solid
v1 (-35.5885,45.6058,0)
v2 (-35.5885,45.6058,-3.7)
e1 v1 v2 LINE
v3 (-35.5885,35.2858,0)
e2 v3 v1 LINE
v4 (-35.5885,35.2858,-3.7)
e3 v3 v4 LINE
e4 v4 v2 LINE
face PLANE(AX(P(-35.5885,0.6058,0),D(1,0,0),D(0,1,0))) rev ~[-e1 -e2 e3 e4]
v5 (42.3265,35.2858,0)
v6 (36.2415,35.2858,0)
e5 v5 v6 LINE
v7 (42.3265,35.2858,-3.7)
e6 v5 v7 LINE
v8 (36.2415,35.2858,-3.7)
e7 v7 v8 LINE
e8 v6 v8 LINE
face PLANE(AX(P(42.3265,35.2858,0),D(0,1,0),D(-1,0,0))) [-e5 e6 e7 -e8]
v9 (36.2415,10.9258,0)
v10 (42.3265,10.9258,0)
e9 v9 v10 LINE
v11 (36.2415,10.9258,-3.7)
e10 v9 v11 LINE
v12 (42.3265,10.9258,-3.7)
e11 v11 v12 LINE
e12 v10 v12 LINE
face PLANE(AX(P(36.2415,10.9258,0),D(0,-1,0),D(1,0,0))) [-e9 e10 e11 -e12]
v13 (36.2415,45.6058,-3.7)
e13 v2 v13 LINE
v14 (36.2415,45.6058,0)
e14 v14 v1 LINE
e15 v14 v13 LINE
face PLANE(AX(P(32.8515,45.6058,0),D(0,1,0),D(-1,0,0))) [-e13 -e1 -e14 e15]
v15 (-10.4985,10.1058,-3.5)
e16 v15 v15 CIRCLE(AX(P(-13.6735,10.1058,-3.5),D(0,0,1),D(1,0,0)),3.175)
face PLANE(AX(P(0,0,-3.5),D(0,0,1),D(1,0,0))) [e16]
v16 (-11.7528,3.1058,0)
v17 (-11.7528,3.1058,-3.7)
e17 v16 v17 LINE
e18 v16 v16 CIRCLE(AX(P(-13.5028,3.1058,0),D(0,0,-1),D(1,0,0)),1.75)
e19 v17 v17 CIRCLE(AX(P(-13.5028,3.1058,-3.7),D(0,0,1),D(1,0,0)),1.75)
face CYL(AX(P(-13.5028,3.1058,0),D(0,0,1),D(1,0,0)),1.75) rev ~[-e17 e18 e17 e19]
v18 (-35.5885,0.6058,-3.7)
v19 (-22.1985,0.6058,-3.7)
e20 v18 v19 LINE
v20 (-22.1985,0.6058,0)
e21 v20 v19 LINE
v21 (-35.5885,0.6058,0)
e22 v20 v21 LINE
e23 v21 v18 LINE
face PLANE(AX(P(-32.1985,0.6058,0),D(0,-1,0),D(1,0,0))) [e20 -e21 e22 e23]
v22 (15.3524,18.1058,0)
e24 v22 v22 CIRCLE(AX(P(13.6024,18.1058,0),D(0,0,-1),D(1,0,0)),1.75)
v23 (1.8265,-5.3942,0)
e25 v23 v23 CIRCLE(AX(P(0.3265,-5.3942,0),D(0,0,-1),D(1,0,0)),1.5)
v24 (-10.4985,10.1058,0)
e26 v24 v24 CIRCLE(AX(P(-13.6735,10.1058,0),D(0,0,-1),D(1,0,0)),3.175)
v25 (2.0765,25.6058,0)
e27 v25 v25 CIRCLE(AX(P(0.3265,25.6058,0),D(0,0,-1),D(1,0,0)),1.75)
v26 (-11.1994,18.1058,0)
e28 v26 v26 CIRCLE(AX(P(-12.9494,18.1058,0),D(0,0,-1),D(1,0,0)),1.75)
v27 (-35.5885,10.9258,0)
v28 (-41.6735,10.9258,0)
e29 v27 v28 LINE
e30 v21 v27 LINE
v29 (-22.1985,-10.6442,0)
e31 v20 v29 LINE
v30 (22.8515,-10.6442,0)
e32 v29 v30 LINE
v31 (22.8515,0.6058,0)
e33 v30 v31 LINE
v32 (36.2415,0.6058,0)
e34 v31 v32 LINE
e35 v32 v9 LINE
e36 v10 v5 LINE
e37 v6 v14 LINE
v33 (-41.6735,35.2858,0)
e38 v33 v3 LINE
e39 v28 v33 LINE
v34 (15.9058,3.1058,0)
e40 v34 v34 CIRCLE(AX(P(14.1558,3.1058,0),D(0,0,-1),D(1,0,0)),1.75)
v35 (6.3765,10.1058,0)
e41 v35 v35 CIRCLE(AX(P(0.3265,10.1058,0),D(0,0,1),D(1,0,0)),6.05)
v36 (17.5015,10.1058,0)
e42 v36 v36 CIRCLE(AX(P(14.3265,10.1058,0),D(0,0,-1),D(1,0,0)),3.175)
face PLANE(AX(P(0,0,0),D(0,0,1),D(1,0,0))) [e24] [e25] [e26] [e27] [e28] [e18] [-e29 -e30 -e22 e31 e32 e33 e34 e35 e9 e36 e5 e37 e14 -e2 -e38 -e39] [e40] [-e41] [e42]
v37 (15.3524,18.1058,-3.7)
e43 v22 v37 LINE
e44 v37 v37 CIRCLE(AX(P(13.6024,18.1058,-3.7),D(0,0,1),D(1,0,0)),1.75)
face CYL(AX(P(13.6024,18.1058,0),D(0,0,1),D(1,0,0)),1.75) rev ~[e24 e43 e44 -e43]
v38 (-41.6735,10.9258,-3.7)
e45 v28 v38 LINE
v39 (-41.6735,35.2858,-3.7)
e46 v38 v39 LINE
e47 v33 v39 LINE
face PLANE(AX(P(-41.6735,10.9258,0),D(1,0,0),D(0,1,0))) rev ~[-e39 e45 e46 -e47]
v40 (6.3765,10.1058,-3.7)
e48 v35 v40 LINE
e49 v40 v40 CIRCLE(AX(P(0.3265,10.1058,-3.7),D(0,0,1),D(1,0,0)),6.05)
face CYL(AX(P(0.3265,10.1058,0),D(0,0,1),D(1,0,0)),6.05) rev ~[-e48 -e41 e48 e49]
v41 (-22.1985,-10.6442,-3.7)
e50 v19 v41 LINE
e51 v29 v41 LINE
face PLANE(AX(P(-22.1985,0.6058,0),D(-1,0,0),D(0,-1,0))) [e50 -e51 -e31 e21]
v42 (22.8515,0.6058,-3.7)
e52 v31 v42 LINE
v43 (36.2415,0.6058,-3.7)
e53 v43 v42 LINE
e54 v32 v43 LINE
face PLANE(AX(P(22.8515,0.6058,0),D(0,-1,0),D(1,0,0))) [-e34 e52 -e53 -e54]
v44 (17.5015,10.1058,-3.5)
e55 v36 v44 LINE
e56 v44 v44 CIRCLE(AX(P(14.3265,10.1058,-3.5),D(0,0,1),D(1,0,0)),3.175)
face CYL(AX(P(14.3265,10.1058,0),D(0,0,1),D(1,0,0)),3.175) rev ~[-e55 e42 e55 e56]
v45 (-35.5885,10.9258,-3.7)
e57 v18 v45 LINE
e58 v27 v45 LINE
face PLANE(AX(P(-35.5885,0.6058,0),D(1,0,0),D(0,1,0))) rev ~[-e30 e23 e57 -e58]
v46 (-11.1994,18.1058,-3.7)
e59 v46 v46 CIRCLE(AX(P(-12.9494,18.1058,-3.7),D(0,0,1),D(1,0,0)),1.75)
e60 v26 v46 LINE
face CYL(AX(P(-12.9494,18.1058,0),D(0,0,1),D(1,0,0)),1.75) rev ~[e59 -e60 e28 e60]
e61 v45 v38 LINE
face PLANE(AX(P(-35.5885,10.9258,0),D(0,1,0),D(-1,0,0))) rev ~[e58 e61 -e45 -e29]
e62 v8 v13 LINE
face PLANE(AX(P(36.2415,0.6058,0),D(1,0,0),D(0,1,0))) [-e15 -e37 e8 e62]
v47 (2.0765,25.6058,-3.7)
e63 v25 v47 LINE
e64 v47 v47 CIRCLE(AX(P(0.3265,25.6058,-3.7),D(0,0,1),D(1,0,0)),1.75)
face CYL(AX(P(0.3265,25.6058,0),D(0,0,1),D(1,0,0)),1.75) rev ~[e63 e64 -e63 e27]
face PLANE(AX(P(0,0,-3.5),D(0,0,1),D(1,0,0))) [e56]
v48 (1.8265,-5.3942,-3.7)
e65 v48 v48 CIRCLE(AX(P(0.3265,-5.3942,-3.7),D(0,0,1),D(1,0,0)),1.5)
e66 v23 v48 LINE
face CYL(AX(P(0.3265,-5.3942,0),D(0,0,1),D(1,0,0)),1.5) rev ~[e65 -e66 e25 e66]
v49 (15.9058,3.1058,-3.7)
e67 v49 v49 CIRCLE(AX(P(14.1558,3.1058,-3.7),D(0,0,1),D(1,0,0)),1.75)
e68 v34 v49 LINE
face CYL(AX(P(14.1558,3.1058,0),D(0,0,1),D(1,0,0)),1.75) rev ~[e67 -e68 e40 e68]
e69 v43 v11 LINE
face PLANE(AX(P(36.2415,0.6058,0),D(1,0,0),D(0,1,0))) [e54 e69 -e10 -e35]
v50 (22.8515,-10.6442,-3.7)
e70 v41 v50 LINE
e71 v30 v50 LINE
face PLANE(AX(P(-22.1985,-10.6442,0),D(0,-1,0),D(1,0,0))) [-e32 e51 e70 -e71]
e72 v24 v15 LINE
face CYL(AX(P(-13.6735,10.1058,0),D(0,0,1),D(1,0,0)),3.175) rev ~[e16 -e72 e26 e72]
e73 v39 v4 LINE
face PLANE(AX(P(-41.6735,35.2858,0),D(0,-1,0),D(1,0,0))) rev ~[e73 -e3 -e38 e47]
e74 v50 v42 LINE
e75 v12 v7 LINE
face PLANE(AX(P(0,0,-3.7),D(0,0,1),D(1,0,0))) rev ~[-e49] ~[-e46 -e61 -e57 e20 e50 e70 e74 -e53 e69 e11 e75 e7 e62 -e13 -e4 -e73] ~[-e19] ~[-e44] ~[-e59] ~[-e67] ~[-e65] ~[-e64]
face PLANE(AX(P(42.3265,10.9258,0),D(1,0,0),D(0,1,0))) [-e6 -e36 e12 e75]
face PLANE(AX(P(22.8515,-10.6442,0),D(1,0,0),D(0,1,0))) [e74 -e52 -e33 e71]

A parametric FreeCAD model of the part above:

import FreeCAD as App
import Part
import Sketcher
from FreeCAD import Vector


def add_polygon(sketch, points):
    """Adds a closed chain of lines whose ends are joined by coincident constraints."""
    first, n = sketch.GeometryCount, len(points)
    for a, b in zip(points, points[1:] + points[:1]):
        sketch.addGeometry(Part.LineSegment(App.Vector(*a, 0), App.Vector(*b, 0)), False)
    for i in range(n):
        sketch.addConstraint(Sketcher.Constraint("Coincident", first + i, 2, first + (i + 1) % n, 1))

doc = App.newDocument("Part")
params = doc.addObject("Spreadsheet::Sheet", "Params")
for row, (alias, value) in enumerate([
    ("sketch1_width", "10 mm"),
    ("sketch1_height", "45 mm"),
    ("sketch1_width2", "45.05 mm"),
    ("sketch1_height2", "11.25 mm"),
    ("pad1_length", "3.7 mm"),
    ("sketch2_diameter", "12.1 mm"),
    ("pocket1_length", "5 mm"),
    ("sketch3_diameter", "6.35 mm"),
    ("pocket2_length", "3.5 mm"),
    ("sketch4_diameter", "3 mm"),
    ("sketch4_diameter2", "3.5 mm"),
    ("pocket3_length", "5 mm"),
    ("sketch5_width", "3.39 mm"),
    ("sketch5_height", "45 mm"),
    ("pad2_length", "3.7 mm"),
    ("sketch6_height", "24.36 mm"),
    ("pad3_length", "3.7 mm"),
], start=1):
    params.set(f"A{row}", alias)
    params.set(f"B{row}", "=" + value)
    params.setAlias(f"B{row}", alias)

body = doc.addObject("PartDesign::Body", "Body")

# Sketch on XY plane
sketch1 = doc.addObject("Sketcher::SketchObject", "Sketch")
body.addObject(sketch1)
sketch1.AttachmentSupport = (doc.XY_Plane, [""])
sketch1.MapMode = "FlatFace"
add_polygon(sketch1, [(-22, 1), (-22, -11), (23, -11), (23, 1), (33, 1), (33, 46), (-32, 46), (-32, 1)])  # lines 0-7
sketch1.addConstraint([
    Sketcher.Constraint("Vertical", 0),
    Sketcher.Constraint("Horizontal", 1),
    Sketcher.Constraint("Vertical", 2),
    Sketcher.Constraint("Horizontal", 3),
    Sketcher.Constraint("Vertical", 4),
    Sketcher.Constraint("Horizontal", 5),
    Sketcher.Constraint("Vertical", 6),
    Sketcher.Constraint("Horizontal", 7),
    Sketcher.Constraint("Horizontal", 3, 2, 6, 2),
    Sketcher.Constraint("Equal", 3, 7),
    Sketcher.Constraint("DistanceX", 3, 1, 3, 2, 10.0),
    Sketcher.Constraint("DistanceY", 4, 1, 4, 2, 45.0),
    Sketcher.Constraint("DistanceX", 1, 1, 1, 2, 45.05),
    Sketcher.Constraint("DistanceY", 0, 2, 0, 1, 11.25),
    Sketcher.Constraint("DistanceX", 0, 2, -1, 1, 22.1985),
    Sketcher.Constraint("DistanceY", 0, 2, -1, 1, 10.6442),
])
sketch1.setExpression("Constraints[18]", "Params.sketch1_width")
sketch1.setExpression("Constraints[19]", "Params.sketch1_height")
sketch1.setExpression("Constraints[20]", "Params.sketch1_width2")
sketch1.setExpression("Constraints[21]", "Params.sketch1_height2")
pad1 = doc.addObject("PartDesign::Pad", "Pad")
body.addObject(pad1)
pad1.Profile = sketch1
pad1.setExpression("Length", "Params.pad1_length")
pad1.Reversed = True

# Sketch on XY plane
sketch2 = doc.addObject("Sketcher::SketchObject", "Sketch001")
body.addObject(sketch2)
sketch2.AttachmentSupport = (doc.XY_Plane, [""])
sketch2.MapMode = "FlatFace"
sketch2.addGeometry(Part.Circle(Vector(0, 10, 0), Vector(0, 0, 1), 6), False)
sketch2.addConstraint([
    Sketcher.Constraint("Diameter", 0, 12.1),
    Sketcher.Constraint("DistanceX", -1, 1, 0, 3, 0.3265),
    Sketcher.Constraint("DistanceY", -1, 1, 0, 3, 10.1058),
])
sketch2.setExpression("Constraints[0]", "Params.sketch2_diameter")
pocket1 = doc.addObject("PartDesign::Pocket", "Pocket")
body.addObject(pocket1)
pocket1.Profile = sketch2
pocket1.setExpression("Length", "Params.pocket1_length")

# Sketch on XY plane
sketch3 = doc.addObject("Sketcher::SketchObject", "Sketch002")
body.addObject(sketch3)
sketch3.AttachmentSupport = (doc.XY_Plane, [""])
sketch3.MapMode = "FlatFace"
sketch3.addGeometry([
    Part.Circle(Vector(14.3, 10.1, 0), Vector(0, 0, 1), 3.2),
    Part.Circle(Vector(-13.7, 10.1, 0), Vector(0, 0, 1), 3.2),
], False)
sketch3.addConstraint([
    Sketcher.Constraint("Equal", 0, 1),
    Sketcher.Constraint("Horizontal", 0, 3, 1, 3),
    Sketcher.Constraint("Diameter", 0, 6.35),
    Sketcher.Constraint("DistanceX", 1, 3, 0, 3, 28.0),
    Sketcher.Constraint("DistanceX", -1, 1, 0, 3, 14.3265),
    Sketcher.Constraint("DistanceY", -1, 1, 0, 3, 10.1058),
])
sketch3.setExpression("Constraints[2]", "Params.sketch3_diameter")
pocket2 = doc.addObject("PartDesign::Pocket", "Pocket001")
body.addObject(pocket2)
pocket2.Profile = sketch3
pocket2.setExpression("Length", "Params.pocket2_length")

# Sketch on XY plane
sketch4 = doc.addObject("Sketcher::SketchObject", "Sketch003")
body.addObject(sketch4)
sketch4.AttachmentSupport = (doc.XY_Plane, [""])
sketch4.MapMode = "FlatFace"
sketch4.addGeometry([
    Part.Circle(Vector(13.6, 18.1, 0), Vector(0, 0, 1), 1.8),  # 0
    Part.Circle(Vector(14.2, 3.1, 0), Vector(0, 0, 1), 1.8),  # 1
    Part.Circle(Vector(0.3, 25.6, 0), Vector(0, 0, 1), 1.8),  # 2
    Part.Circle(Vector(0.3, -5.4, 0), Vector(0, 0, 1), 1.5),  # 3
    Part.Circle(Vector(-12.9, 18.1, 0), Vector(0, 0, 1), 1.8),  # 4
    Part.Circle(Vector(-13.5, 3.1, 0), Vector(0, 0, 1), 1.8),  # 5
], False)
sketch4.addConstraint([
    Sketcher.Constraint("Equal", 0, 1),
    Sketcher.Constraint("Equal", 1, 2),
    Sketcher.Constraint("Equal", 2, 4),
    Sketcher.Constraint("Equal", 4, 5),
    Sketcher.Constraint("Horizontal", 0, 3, 4, 3),
    Sketcher.Constraint("Horizontal", 1, 3, 5, 3),
    Sketcher.Constraint("Vertical", 2, 3, 3, 3),
    Sketcher.Constraint("Diameter", 3, 3.0),
    Sketcher.Constraint("Diameter", 0, 3.5),
    Sketcher.Constraint("DistanceY", 1, 3, 0, 3, 15.0),
    Sketcher.Constraint("DistanceY", 3, 3, 2, 3, 31.0),
    Sketcher.Constraint("DistanceY", 0, 3, 2, 3, 7.5),
    Sketcher.Constraint("DistanceX", 2, 3, 0, 3, 13.276),
    Sketcher.Constraint("DistanceX", 4, 3, 2, 3, 13.276),
    Sketcher.Constraint("DistanceX", -1, 1, 0, 3, 13.6024),
    Sketcher.Constraint("DistanceY", -1, 1, 0, 3, 18.1058),
    Sketcher.Constraint("DistanceX", -1, 1, 1, 3, 14.1558),
    Sketcher.Constraint("DistanceX", 5, 3, -1, 1, 13.5028),
])
sketch4.setExpression("Constraints[7]", "Params.sketch4_diameter")
sketch4.setExpression("Constraints[8]", "Params.sketch4_diameter2")
pocket3 = doc.addObject("PartDesign::Pocket", "Pocket002")
body.addObject(pocket3)
pocket3.Profile = sketch4
pocket3.setExpression("Length", "Params.pocket3_length")

# Sketch on XY plane
sketch5 = doc.addObject("Sketcher::SketchObject", "Sketch004")
body.addObject(sketch5)
sketch5.AttachmentSupport = (doc.XY_Plane, [""])
sketch5.MapMode = "FlatFace"
add_polygon(sketch5, [(36.2, 45.6), (32.9, 45.6), (32.9, 0.6), (36.2, 0.6)])  # lines 0-3
add_polygon(sketch5, [(-32.2, 45.6), (-35.6, 45.6), (-35.6, 0.6), (-32.2, 0.6)])  # lines 4-7
sketch5.addConstraint([
    Sketcher.Constraint("Horizontal", 0),
    Sketcher.Constraint("Vertical", 1),
    Sketcher.Constraint("Horizontal", 2),
    Sketcher.Constraint("Vertical", 3),
    Sketcher.Constraint("Horizontal", 4),
    Sketcher.Constraint("Vertical", 5),
    Sketcher.Constraint("Horizontal", 6),
    Sketcher.Constraint("Vertical", 7),
    Sketcher.Constraint("Horizontal", 3, 2, 4, 2),
    Sketcher.Constraint("Horizontal", 2, 2, 5, 2),
    Sketcher.Constraint("Equal", 2, 4),
    Sketcher.Constraint("DistanceX", 0, 2, 0, 1, 3.39),
    Sketcher.Constraint("DistanceY", 1, 2, 1, 1, 45.0),
    Sketcher.Constraint("DistanceX", 4, 2, 0, 2, 68.44),
    Sketcher.Constraint("DistanceX", -1, 1, 0, 2, 32.8515),
    Sketcher.Constraint("DistanceY", -1, 1, 0, 2, 45.6058),
])
sketch5.setExpression("Constraints[19]", "Params.sketch5_width")
sketch5.setExpression("Constraints[20]", "Params.sketch5_height")
pad2 = doc.addObject("PartDesign::Pad", "Pad001")
body.addObject(pad2)
pad2.Profile = sketch5
pad2.setExpression("Length", "Params.pad2_length")
pad2.Reversed = True

# Sketch on XY plane
sketch6 = doc.addObject("Sketcher::SketchObject", "Sketch005")
body.addObject(sketch6)
sketch6.AttachmentSupport = (doc.XY_Plane, [""])
sketch6.MapMode = "FlatFace"
add_polygon(sketch6, [(-36, 11), (-36, 35), (-42, 35), (-42, 11)])  # lines 0-3
add_polygon(sketch6, [(42, 35), (36, 35), (36, 11), (42, 11)])  # lines 4-7
sketch6.addConstraint([
    Sketcher.Constraint("Vertical", 0),
    Sketcher.Constraint("Horizontal", 1),
    Sketcher.Constraint("Vertical", 2),
    Sketcher.Constraint("Horizontal", 3),
    Sketcher.Constraint("Horizontal", 4),
    Sketcher.Constraint("Vertical", 5),
    Sketcher.Constraint("Horizontal", 6),
    Sketcher.Constraint("Vertical", 7),
    Sketcher.Constraint("Horizontal", 1, 2, 4, 2),
    Sketcher.Constraint("Horizontal", 3, 2, 5, 2),
    Sketcher.Constraint("Equal", 3, 4),
    Sketcher.Constraint("DistanceX", 1, 2, 1, 1, 6.085),
    Sketcher.Constraint("DistanceX", 2, 2, 6, 2, 84.0),
    Sketcher.Constraint("DistanceY", 0, 1, 0, 2, 24.36),
    Sketcher.Constraint("DistanceX", 0, 2, -1, 1, 35.5885),
    Sketcher.Constraint("DistanceY", -1, 1, 0, 2, 35.2858),
])
sketch6.setExpression("Constraints[21]", "Params.sketch6_height")
pad3 = doc.addObject("PartDesign::Pad", "Pad002")
body.addObject(pad3)
pad3.Profile = sketch6
pad3.setExpression("Length", "Params.pad3_length")
pad3.Reversed = True

doc.recompute()
